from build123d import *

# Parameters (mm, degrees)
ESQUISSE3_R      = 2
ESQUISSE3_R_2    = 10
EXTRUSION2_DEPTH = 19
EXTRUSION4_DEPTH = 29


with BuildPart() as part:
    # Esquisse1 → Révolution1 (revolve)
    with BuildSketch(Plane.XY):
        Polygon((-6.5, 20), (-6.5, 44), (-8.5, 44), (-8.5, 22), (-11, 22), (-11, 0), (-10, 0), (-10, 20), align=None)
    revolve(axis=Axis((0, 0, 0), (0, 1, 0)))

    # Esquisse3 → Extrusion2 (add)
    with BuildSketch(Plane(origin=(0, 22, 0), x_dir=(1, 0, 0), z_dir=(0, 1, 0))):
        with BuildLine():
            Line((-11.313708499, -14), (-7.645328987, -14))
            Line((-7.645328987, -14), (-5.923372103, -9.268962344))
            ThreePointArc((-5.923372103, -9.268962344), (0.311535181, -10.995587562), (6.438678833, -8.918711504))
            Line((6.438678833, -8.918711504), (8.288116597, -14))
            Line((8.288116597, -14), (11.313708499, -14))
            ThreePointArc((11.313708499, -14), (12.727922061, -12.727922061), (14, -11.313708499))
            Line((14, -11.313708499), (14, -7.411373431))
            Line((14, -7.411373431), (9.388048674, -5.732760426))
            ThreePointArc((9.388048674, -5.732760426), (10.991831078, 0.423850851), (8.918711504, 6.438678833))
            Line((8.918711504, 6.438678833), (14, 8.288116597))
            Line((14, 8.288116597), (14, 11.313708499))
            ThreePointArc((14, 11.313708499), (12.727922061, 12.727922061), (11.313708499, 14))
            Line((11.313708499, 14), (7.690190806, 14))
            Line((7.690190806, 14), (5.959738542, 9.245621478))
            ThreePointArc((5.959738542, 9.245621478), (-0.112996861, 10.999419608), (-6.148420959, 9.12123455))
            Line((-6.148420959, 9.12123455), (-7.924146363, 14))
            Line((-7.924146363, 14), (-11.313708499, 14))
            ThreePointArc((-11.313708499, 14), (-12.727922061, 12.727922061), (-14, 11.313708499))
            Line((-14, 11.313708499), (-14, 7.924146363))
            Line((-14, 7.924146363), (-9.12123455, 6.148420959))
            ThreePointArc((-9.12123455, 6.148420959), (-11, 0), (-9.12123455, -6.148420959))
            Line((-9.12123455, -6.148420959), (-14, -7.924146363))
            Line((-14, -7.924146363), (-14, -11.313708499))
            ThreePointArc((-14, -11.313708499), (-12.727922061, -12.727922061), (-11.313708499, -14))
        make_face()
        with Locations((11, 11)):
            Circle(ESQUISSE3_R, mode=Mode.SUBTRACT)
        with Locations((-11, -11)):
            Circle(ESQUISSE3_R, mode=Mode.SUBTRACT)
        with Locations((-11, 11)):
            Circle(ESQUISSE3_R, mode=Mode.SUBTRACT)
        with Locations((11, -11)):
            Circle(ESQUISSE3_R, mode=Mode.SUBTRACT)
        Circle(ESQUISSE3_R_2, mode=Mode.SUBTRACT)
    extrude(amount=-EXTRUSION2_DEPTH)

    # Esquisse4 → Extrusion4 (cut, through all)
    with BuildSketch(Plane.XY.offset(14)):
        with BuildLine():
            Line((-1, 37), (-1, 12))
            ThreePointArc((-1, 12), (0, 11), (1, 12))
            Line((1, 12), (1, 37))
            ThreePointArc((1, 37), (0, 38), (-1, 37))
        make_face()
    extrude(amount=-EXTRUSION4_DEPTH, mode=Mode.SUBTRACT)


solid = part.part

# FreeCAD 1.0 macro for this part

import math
import FreeCAD as App
import Part
import Sketcher
from FreeCAD import Vector
Q = App.Units.Quantity

doc = App.newDocument("Part")
body = doc.addObject("PartDesign::Body", "Body")

sketch1 = body.newObject("Sketcher::SketchObject", "Sketch")
sketch1.AttachmentSupport = (doc.getObject("XY_Plane"), [""])
sketch1.MapMode = "FlatFace"
sketch1.addGeometry([
    Part.LineSegment(Vector(-6.5, 20, 0), Vector(-6.5, 44, 0)),
    Part.LineSegment(Vector(-6.5, 44, 0), Vector(-8.5, 44, 0)),
    Part.LineSegment(Vector(-8.5, 44, 0), Vector(-8.5, 22, 0)),
    Part.LineSegment(Vector(-8.5, 22, 0), Vector(-11, 22, 0)),
    Part.LineSegment(Vector(-11, 22, 0), Vector(-11, 0, 0)),
    Part.LineSegment(Vector(-11, 0, 0), Vector(-10, 0, 0)),
    Part.LineSegment(Vector(-10, 0, 0), Vector(-10, 20, 0)),
    Part.LineSegment(Vector(-10, 20, 0), Vector(-6.5, 20, 0)),
], False)
sketch1.addConstraint([
    Sketcher.Constraint("Coincident", 0, 2, 1, 1),
    Sketcher.Constraint("Coincident", 1, 2, 2, 1),
    Sketcher.Constraint("Coincident", 2, 2, 3, 1),
    Sketcher.Constraint("Coincident", 3, 2, 4, 1),
    Sketcher.Constraint("Coincident", 4, 2, 5, 1),
    Sketcher.Constraint("Coincident", 5, 2, 6, 1),
    Sketcher.Constraint("Coincident", 6, 2, 7, 1),
    Sketcher.Constraint("Coincident", 7, 2, 0, 1),
    Sketcher.Constraint("Vertical", 0),
    Sketcher.Constraint("Horizontal", 1),
    Sketcher.Constraint("Vertical", 2),
    Sketcher.Constraint("Horizontal", 3),
    Sketcher.Constraint("Vertical", 4),
    Sketcher.Constraint("Horizontal", 5),
    Sketcher.Constraint("Vertical", 6),
    Sketcher.Constraint("Horizontal", 7),
    Sketcher.Constraint("PointOnObject", 4, 2, -1),
    Sketcher.Constraint("Equal", 2, 4),
    Sketcher.Constraint("DistanceX", 1, 2, 1, 1, 2.0),
    Sketcher.Constraint("DistanceX", 5, 1, 5, 2, 1.0),
    Sketcher.Constraint("DistanceY", 0, 1, 0, 2, 24.0),
    Sketcher.Constraint("DistanceY", 2, 2, 2, 1, 22.0),
    Sketcher.Constraint("DistanceX", 3, 2, 3, 1, 2.5),
    Sketcher.Constraint("DistanceX", 3, 2, -1, 1, 11.0),
])
revolution = body.newObject("PartDesign::Revolution", "Revolution")
revolution.Profile = sketch1
revolution.ReferenceAxis = (sketch1, ["V_Axis"])
revolution.Angle = 360

sketch2 = body.newObject("Sketcher::SketchObject", "Sketch001")
sketch2.AttachmentSupport = (doc.getObject("XZ_Plane"), [""])
sketch2.MapMode = "FlatFace"
sketch2.AttachmentOffset = App.Placement(Vector(0, 0, -22), App.Rotation())
sketch2.addGeometry([
    Part.LineSegment(Vector(-11.3, 14, 0), Vector(-7.6, 14, 0)),
    Part.LineSegment(Vector(-7.6, 14, 0), Vector(-5.9, 9.3, 0)),
    Part.ArcOfCircle(Part.Circle(Vector(0, 0, 0), Vector(0, 0, 1), 11), math.radians(54), math.radians(123)),
    Part.LineSegment(Vector(6.4, 8.9, 0), Vector(8.3, 14, 0)),
    Part.LineSegment(Vector(8.3, 14, 0), Vector(11.3, 14, 0)),
    Part.ArcOfCircle(Part.Circle(Vector(0, 0, 0), Vector(0, 0, 1), 18), math.radians(38.94), math.radians(51.06)),
    Part.LineSegment(Vector(14, 11.3, 0), Vector(14, 7.4, 0)),
    Part.LineSegment(Vector(14, 7.4, 0), Vector(9.4, 5.7, 0)),
    Part.ArcOfCircle(Part.Circle(Vector(0, 0, 0), Vector(0, 0, 1), 11), math.radians(-36), math.radians(31)),
    Part.LineSegment(Vector(8.9, -6.4, 0), Vector(14, -8.3, 0)),
    Part.LineSegment(Vector(14, -8.3, 0), Vector(14, -11.3, 0)),
    Part.ArcOfCircle(Part.Circle(Vector(0, 0, 0), Vector(0, 0, 1), 18), math.radians(-51.06), math.radians(-38.94)),
    Part.LineSegment(Vector(11.3, -14, 0), Vector(7.7, -14, 0)),
    Part.LineSegment(Vector(7.7, -14, 0), Vector(6, -9.2, 0)),
    Part.ArcOfCircle(Part.Circle(Vector(0, 0, 0), Vector(0, 0, 1), 11), math.radians(-124), math.radians(-57)),
    Part.LineSegment(Vector(-6.1, -9.1, 0), Vector(-7.9, -14, 0)),
    Part.LineSegment(Vector(-7.9, -14, 0), Vector(-11.3, -14, 0)),
    Part.ArcOfCircle(Part.Circle(Vector(0, 0, 0), Vector(0, 0, 1), 18), math.radians(-141.06), math.radians(-128.94)),
    Part.LineSegment(Vector(-14, -11.3, 0), Vector(-14, -7.9, 0)),
    Part.LineSegment(Vector(-14, -7.9, 0), Vector(-9.1, -6.1, 0)),
    Part.ArcOfCircle(Part.Circle(Vector(0, 0, 0), Vector(0, 0, 1), 11), math.radians(146), math.radians(214)),
    Part.LineSegment(Vector(-9.1, 6.1, 0), Vector(-14, 7.9, 0)),
    Part.LineSegment(Vector(-14, 7.9, 0), Vector(-14, 11.3, 0)),
    Part.ArcOfCircle(Part.Circle(Vector(0, 0, 0), Vector(0, 0, 1), 18), math.radians(128.94), math.radians(141.06)),
    Part.Circle(Vector(-11, 11, 0), Vector(0, 0, 1), 2),
    Part.Circle(Vector(11, 11, 0), Vector(0, 0, 1), 2),
    Part.Circle(Vector(-11, -11, 0), Vector(0, 0, 1), 2),
    Part.Circle(Vector(0, 0, 0), Vector(0, 0, 1), 10),
    Part.Circle(Vector(11, -11, 0), Vector(0, 0, 1), 2),
], False)
sketch2.addConstraint([
    Sketcher.Constraint("Coincident", 0, 2, 1, 1),
    Sketcher.Constraint("Coincident", 1, 2, 2, 2),
    Sketcher.Constraint("Coincident", 2, 1, 3, 1),
    Sketcher.Constraint("Coincident", 3, 2, 4, 1),
    Sketcher.Constraint("Coincident", 4, 2, 5, 2),
    Sketcher.Constraint("Coincident", 5, 1, 6, 1),
    Sketcher.Constraint("Coincident", 6, 2, 7, 1),
    Sketcher.Constraint("Coincident", 7, 2, 8, 2),
    Sketcher.Constraint("Coincident", 8, 1, 9, 1),
    Sketcher.Constraint("Coincident", 9, 2, 10, 1),
    Sketcher.Constraint("Coincident", 10, 2, 11, 2),
    Sketcher.Constraint("Coincident", 11, 1, 12, 1),
    Sketcher.Constraint("Coincident", 12, 2, 13, 1),
    Sketcher.Constraint("Coincident", 13, 2, 14, 2),
    Sketcher.Constraint("Coincident", 14, 1, 15, 1),
    Sketcher.Constraint("Coincident", 15, 2, 16, 1),
    Sketcher.Constraint("Coincident", 16, 2, 17, 2),
    Sketcher.Constraint("Coincident", 17, 1, 18, 1),
    Sketcher.Constraint("Coincident", 18, 2, 19, 1),
    Sketcher.Constraint("Coincident", 19, 2, 20, 2),
    Sketcher.Constraint("Coincident", 20, 1, 21, 1),
    Sketcher.Constraint("Coincident", 21, 2, 22, 1),
    Sketcher.Constraint("Coincident", 22, 2, 23, 2),
    Sketcher.Constraint("Coincident", 23, 1, 0, 1),
    Sketcher.Constraint("Horizontal", 0),
    Sketcher.Constraint("Horizontal", 4),
    Sketcher.Constraint("Vertical", 6),
    Sketcher.Constraint("Vertical", 10),
    Sketcher.Constraint("Horizontal", 12),
    Sketcher.Constraint("Horizontal", 16),
    Sketcher.Constraint("Vertical", 18),
    Sketcher.Constraint("Vertical", 22),
    Sketcher.Constraint("Coincident", 2, 3, -1, 1),
    Sketcher.Constraint("Coincident", 5, 3, -1, 1),
    Sketcher.Constraint("Coincident", 8, 3, -1, 1),
    Sketcher.Constraint("Coincident", 11, 3, -1, 1),
    Sketcher.Constraint("Coincident", 14, 3, -1, 1),
    Sketcher.Constraint("Coincident", 17, 3, -1, 1),
    Sketcher.Constraint("Coincident", 20, 3, -1, 1),
    Sketcher.Constraint("Coincident", 23, 3, -1, 1),
    Sketcher.Constraint("Coincident", 27, 3, -1, 1),
    Sketcher.Constraint("Equal", 2, 8),
    Sketcher.Constraint("Equal", 5, 11),
    Sketcher.Constraint("Equal", 8, 14),
    Sketcher.Constraint("Equal", 11, 17),
    Sketcher.Constraint("Equal", 14, 20),
    Sketcher.Constraint("Equal", 17, 23),
    Sketcher.Constraint("Equal", 24, 25),
    Sketcher.Constraint("Equal", 25, 26),
    Sketcher.Constraint("Equal", 26, 28),
    Sketcher.Constraint("Symmetric", 25, 3, 26, 3, -1, 1),
    Sketcher.Constraint("Symmetric", 24, 3, 28, 3, -1, 1),
    Sketcher.Constraint("Symmetric", 24, 3, 25, 3, -2),
    Sketcher.Constraint("Symmetric", 18, 2, 21, 2, -1),
    Sketcher.Constraint("Perpendicular", 1, 7),
    Sketcher.Constraint("Perpendicular", 3, 9),
    Sketcher.Constraint("Perpendicular", 7, 13),
    Sketcher.Constraint("Perpendicular", 9, 15),
    Sketcher.Constraint("Perpendicular", 13, 19),
    Sketcher.Constraint("Perpendicular", 15, 21),
    Sketcher.Constraint("Horizontal", 0, 2, 3, 2),
    Sketcher.Constraint("Horizontal", 12, 2, 15, 2),
    Sketcher.Constraint("Horizontal", 10, 2, 17, 1),
    Sketcher.Constraint("Horizontal", 5, 1, 22, 2),
    Sketcher.Constraint("Vertical", 4, 2, 11, 1),
    Sketcher.Constraint("Vertical", 19, 2, 20, 1),
    Sketcher.Constraint("Equal", 4, 10),
    Sketcher.Constraint("Equal", 16, 18),
    Sketcher.Constraint("Equal", 3, 9),
    Sketcher.Constraint("Diameter", 24, 4.0),
    Sketcher.Constraint("Diameter", 27, 20.0),
    Sketcher.Constraint("Radius", 2, 11.0),
    Sketcher.Constraint("Radius", 5, 18.0),
    Sketcher.Constraint("Angle", 1, Q("-70 deg")),
    Sketcher.Constraint("DistanceX", 24, 3, -1, 1, 11.0),
    Sketcher.Constraint("DistanceY", -1, 1, 24, 3, 11.0),
    Sketcher.Constraint("DistanceY", -1, 1, 0, 2, 14.0),
    Sketcher.Constraint("DistanceX", 0, 1, 0, 2, 3.66838),
    Sketcher.Constraint("DistanceX", 4, 1, 4, 2, 3.025592),
    Sketcher.Constraint("DistanceX", 12, 2, 12, 1, 3.623518),
    Sketcher.Constraint("DistanceX", 16, 2, 16, 1, 3.389562),
    Sketcher.Constraint("DistanceY", 6, 2, 6, 1, 3.902335),
])
pad1 = body.newObject("PartDesign::Pad", "Pad")
pad1.Profile = sketch2
pad1.Length = 19

sketch3 = body.newObject("Sketcher::SketchObject", "Sketch002")
sketch3.AttachmentSupport = (doc.getObject("XY_Plane"), [""])
sketch3.MapMode = "FlatFace"
sketch3.AttachmentOffset = App.Placement(Vector(0, 0, 14), App.Rotation())
sketch3.addGeometry([
    Part.LineSegment(Vector(-1, 37, 0), Vector(-1, 12, 0)),
    Part.ArcOfCircle(Part.Circle(Vector(0, 12, 0), Vector(0, 0, 1), 1), math.radians(180), math.radians(360)),
    Part.LineSegment(Vector(1, 12, 0), Vector(1, 37, 0)),
    Part.ArcOfCircle(Part.Circle(Vector(0, 37, 0), Vector(0, 0, 1), 1), math.radians(0), math.radians(180)),
], False)
sketch3.addConstraint([
    Sketcher.Constraint("Tangent", 0, 2, 1, 1),
    Sketcher.Constraint("Tangent", 1, 2, 2, 1),
    Sketcher.Constraint("Tangent", 2, 2, 3, 1),
    Sketcher.Constraint("Tangent", 3, 2, 0, 1),
    Sketcher.Constraint("Vertical", 0),
    Sketcher.Constraint("Vertical", 2),
    Sketcher.Constraint("PointOnObject", 1, 3, -2),
    Sketcher.Constraint("Radius", 1, 1.0),
    Sketcher.Constraint("DistanceY", 0, 2, 0, 1, 25.0),
    Sketcher.Constraint("DistanceY", -1, 1, 1, 3, 12.0),
])
pocket1 = body.newObject("PartDesign::Pocket", "Pocket")
pocket1.Profile = sketch3
pocket1.Type = "ThroughAll"

doc.recompute()
